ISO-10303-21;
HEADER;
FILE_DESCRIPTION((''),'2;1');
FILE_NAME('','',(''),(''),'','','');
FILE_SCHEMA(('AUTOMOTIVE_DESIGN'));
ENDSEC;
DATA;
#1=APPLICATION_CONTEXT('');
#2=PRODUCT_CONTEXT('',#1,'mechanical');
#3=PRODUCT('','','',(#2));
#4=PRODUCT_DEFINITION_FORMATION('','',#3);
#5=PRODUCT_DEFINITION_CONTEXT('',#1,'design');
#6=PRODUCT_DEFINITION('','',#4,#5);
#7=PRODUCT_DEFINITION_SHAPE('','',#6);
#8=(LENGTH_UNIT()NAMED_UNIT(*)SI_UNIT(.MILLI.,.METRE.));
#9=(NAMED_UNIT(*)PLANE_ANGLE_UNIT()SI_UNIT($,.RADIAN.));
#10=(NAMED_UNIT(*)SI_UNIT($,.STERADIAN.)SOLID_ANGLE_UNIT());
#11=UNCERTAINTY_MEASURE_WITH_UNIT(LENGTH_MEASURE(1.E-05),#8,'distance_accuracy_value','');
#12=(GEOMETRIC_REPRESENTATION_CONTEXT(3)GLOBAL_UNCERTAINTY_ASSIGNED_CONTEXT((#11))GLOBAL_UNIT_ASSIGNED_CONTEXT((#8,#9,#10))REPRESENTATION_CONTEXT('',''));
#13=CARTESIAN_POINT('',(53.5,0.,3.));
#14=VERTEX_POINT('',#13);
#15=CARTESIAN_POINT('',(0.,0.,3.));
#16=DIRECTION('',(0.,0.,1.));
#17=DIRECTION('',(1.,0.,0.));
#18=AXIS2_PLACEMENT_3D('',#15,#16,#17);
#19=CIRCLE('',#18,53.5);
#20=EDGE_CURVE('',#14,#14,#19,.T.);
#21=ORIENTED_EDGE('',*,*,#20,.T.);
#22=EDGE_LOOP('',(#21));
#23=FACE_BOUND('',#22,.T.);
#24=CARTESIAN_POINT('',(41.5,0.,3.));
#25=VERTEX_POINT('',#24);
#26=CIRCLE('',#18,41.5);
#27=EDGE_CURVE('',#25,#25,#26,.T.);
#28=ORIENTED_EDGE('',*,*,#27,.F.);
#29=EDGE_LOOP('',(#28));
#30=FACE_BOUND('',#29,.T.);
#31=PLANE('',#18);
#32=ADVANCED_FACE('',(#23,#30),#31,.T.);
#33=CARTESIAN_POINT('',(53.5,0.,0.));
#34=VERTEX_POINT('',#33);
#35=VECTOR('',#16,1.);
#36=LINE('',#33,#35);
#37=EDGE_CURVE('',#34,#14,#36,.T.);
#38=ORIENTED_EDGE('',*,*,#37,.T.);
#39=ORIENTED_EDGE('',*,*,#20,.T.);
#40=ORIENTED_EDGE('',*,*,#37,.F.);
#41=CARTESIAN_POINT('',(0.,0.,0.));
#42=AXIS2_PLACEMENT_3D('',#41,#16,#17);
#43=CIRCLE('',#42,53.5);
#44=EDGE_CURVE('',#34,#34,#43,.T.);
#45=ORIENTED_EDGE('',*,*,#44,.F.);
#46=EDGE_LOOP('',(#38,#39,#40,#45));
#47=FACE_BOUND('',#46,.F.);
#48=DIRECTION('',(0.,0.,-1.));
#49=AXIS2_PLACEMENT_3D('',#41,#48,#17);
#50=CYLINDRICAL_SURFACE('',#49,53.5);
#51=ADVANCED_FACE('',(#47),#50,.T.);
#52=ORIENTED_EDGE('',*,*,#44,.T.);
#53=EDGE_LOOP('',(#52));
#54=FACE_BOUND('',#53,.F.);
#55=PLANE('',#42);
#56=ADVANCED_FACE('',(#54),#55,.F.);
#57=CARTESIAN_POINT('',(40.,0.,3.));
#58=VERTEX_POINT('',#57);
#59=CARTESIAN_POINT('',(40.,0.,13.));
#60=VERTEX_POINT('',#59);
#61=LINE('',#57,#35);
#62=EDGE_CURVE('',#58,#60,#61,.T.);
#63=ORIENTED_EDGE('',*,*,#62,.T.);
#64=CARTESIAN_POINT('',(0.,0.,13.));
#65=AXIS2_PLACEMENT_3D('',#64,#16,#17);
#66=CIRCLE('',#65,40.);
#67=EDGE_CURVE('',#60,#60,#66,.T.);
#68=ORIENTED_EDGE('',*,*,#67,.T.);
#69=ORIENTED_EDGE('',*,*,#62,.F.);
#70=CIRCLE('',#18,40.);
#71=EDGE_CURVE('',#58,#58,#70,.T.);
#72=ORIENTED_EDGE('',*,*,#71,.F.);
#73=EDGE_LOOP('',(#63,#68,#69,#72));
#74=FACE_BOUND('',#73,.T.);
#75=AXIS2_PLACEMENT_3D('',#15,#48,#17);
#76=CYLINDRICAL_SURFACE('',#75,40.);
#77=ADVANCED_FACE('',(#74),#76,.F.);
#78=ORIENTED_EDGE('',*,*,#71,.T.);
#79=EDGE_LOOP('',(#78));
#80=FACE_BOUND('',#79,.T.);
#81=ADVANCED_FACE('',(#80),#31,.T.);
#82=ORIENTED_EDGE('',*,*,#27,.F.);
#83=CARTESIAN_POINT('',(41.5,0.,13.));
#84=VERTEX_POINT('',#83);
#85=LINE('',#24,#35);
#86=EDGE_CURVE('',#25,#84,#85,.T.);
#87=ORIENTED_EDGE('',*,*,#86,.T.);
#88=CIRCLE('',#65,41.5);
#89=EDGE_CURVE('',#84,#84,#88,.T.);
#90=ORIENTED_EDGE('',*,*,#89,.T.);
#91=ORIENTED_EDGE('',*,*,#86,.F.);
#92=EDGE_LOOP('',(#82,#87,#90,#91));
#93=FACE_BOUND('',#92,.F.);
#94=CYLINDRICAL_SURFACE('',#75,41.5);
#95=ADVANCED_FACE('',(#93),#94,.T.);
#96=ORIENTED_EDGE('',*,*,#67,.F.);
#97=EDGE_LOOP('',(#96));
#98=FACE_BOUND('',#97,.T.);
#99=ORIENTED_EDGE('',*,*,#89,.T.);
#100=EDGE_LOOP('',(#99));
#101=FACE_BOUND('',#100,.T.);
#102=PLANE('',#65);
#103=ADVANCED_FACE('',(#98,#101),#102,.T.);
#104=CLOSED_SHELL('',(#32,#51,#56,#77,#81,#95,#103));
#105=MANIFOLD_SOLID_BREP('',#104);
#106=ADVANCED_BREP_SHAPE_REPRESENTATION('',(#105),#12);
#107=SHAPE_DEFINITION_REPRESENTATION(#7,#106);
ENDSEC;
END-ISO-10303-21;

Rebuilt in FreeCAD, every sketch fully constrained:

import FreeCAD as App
import Part
import Sketcher

doc = App.newDocument("Part")
body = doc.addObject("PartDesign::Body", "Body")

sketch1 = body.newObject("Sketcher::SketchObject", "Sketch")
sketch1.AttachmentSupport = (doc.getObject("XY_Plane"), [""])
sketch1.MapMode = "FlatFace"
sketch1.addGeometry(Part.Circle(App.Vector(0, 0, 0), App.Vector(0, 0, 1), 53.5), False)
sketch1.addConstraint([
    Sketcher.Constraint("Coincident", 0, 3, -1, 1),
    Sketcher.Constraint("Diameter", 0, 107.0),
])
pad1 = body.newObject("PartDesign::Pad", "Pad")
pad1.Profile = sketch1
pad1.Length = 3

sketch2 = body.newObject("Sketcher::SketchObject", "Sketch001")
sketch2.AttachmentSupport = (doc.getObject("XY_Plane"), [""])
sketch2.MapMode = "FlatFace"
sketch2.AttachmentOffset = App.Placement(App.Vector(0, 0, 3), App.Rotation())
sketch2.addGeometry([
    Part.Circle(App.Vector(0, 0, 0), App.Vector(0, 0, 1), 41.5),
    Part.Circle(App.Vector(0, 0, 0), App.Vector(0, 0, 1), 40),
], False)
sketch2.addConstraint([
    Sketcher.Constraint("Coincident", 0, 3, -1, 1),
    Sketcher.Constraint("Coincident", 1, 3, -1, 1),
    Sketcher.Constraint("Diameter", 0, 83.0),
    Sketcher.Constraint("Diameter", 1, 80.0),
])
pad2 = body.newObject("PartDesign::Pad", "Pad001")
pad2.Profile = sketch2
pad2.Length = 10

doc.recompute()
